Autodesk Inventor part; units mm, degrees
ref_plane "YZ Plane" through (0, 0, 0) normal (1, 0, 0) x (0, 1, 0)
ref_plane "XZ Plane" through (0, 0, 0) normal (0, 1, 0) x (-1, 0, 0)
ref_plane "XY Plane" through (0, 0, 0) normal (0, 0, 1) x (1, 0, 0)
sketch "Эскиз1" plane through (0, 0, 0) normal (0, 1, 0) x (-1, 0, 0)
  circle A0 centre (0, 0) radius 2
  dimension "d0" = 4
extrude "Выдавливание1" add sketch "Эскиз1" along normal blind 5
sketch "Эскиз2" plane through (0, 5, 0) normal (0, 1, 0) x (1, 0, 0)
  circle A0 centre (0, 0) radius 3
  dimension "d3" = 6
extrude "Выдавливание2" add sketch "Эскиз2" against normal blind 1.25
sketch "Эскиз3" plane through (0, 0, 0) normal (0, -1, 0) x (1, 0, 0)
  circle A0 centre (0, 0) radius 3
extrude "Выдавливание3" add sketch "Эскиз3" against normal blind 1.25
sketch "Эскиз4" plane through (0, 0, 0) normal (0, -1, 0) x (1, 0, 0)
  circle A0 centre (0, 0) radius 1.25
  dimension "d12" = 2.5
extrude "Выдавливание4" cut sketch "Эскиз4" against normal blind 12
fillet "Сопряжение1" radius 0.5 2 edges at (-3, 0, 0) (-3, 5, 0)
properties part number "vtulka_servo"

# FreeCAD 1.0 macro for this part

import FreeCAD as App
import Part
import Sketcher

V = App.Vector


def edges_at(feature, points):
    """Names of the edges that pass closest to the given points."""
    edges = feature.Shape.Edges
    near = lambda p: min(range(len(edges)), key=lambda i: edges[i].distToShape(Part.Vertex(*p))[0])
    return sorted({f"Edge{near(p) + 1}" for p in points})

doc = App.newDocument("Part")
params = doc.addObject("Spreadsheet::Sheet", "Params")
for row, (alias, value) in enumerate([
    ("sketch1_diameter", "4 mm"),
    ("pad1_length", "5 mm"),
    ("sketch2_diameter", "6 mm"),
    ("pad2_length", "1.25 mm"),
    ("sketch3_diameter", "6 mm"),
    ("pad3_length", "1.25 mm"),
    ("sketch4_diameter", "2.5 mm"),
    ("pocket1_length", "12 mm"),
    ("fillet_radius", "0.5 mm"),
], start=1):
    params.set(f"A{row}", alias)
    params.set(f"B{row}", "=" + value)
    params.setAlias(f"B{row}", alias)

body = doc.addObject("PartDesign::Body", "Body")

# Sketch on XZ plane
sketch1 = doc.addObject("Sketcher::SketchObject", "Sketch")
body.addObject(sketch1)
sketch1.AttachmentSupport = (doc.XZ_Plane, [""])
sketch1.MapMode = "FlatFace"
sketch1.addGeometry(Part.Circle(V(0, 0, 0), V(0, 0, 1), 2), False)
sketch1.addConstraint([
    Sketcher.Constraint("Coincident", 0, 3, -1, 1),
    Sketcher.Constraint("Diameter", 0, 4.0),
])
sketch1.setExpression("Constraints[1]", "Params.sketch1_diameter")
pad1 = doc.addObject("PartDesign::Pad", "Pad")
body.addObject(pad1)
pad1.Profile = sketch1
pad1.setExpression("Length", "Params.pad1_length")
pad1.Reversed = True

# Sketch on XZ plane
sketch2 = doc.addObject("Sketcher::SketchObject", "Sketch001")
body.addObject(sketch2)
sketch2.AttachmentSupport = (doc.XZ_Plane, [""])
sketch2.MapMode = "FlatFace"
sketch2.AttachmentOffset = App.Placement(V(0, 0, -5), App.Rotation())
sketch2.addGeometry(Part.Circle(V(0, 0, 0), V(0, 0, 1), 3), False)
sketch2.addConstraint([
    Sketcher.Constraint("Coincident", 0, 3, -1, 1),
    Sketcher.Constraint("Diameter", 0, 6.0),
])
sketch2.setExpression("Constraints[1]", "Params.sketch2_diameter")
pad2 = doc.addObject("PartDesign::Pad", "Pad001")
body.addObject(pad2)
pad2.Profile = sketch2
pad2.setExpression("Length", "Params.pad2_length")

# Sketch on XZ plane
sketch3 = doc.addObject("Sketcher::SketchObject", "Sketch002")
body.addObject(sketch3)
sketch3.AttachmentSupport = (doc.XZ_Plane, [""])
sketch3.MapMode = "FlatFace"
sketch3.addGeometry(Part.Circle(V(0, 0, 0), V(0, 0, 1), 3), False)
sketch3.addConstraint([
    Sketcher.Constraint("Coincident", 0, 3, -1, 1),
    Sketcher.Constraint("Diameter", 0, 6.0),
])
sketch3.setExpression("Constraints[1]", "Params.sketch3_diameter")
pad3 = doc.addObject("PartDesign::Pad", "Pad002")
body.addObject(pad3)
pad3.Profile = sketch3
pad3.setExpression("Length", "Params.pad3_length")
pad3.Reversed = True

# Sketch on XZ plane
sketch4 = doc.addObject("Sketcher::SketchObject", "Sketch003")
body.addObject(sketch4)
sketch4.AttachmentSupport = (doc.XZ_Plane, [""])
sketch4.MapMode = "FlatFace"
sketch4.addGeometry(Part.Circle(V(0, 0, 0), V(0, 0, 1), 1.2), False)
sketch4.addConstraint([
    Sketcher.Constraint("Coincident", 0, 3, -1, 1),
    Sketcher.Constraint("Diameter", 0, 2.5),
])
sketch4.setExpression("Constraints[1]", "Params.sketch4_diameter")
pocket1 = doc.addObject("PartDesign::Pocket", "Pocket")
body.addObject(pocket1)
pocket1.Profile = sketch4
pocket1.setExpression("Length", "Params.pocket1_length")
doc.recompute()

fillet = doc.addObject("PartDesign::Fillet", "Fillet")
body.addObject(fillet)
fillet.Base = (pocket1, edges_at(pocket1, [(-3, 0, 0), (-3, 5, 0)]))
fillet.setExpression("Radius", "Params.fillet_radius")

doc.recompute()
